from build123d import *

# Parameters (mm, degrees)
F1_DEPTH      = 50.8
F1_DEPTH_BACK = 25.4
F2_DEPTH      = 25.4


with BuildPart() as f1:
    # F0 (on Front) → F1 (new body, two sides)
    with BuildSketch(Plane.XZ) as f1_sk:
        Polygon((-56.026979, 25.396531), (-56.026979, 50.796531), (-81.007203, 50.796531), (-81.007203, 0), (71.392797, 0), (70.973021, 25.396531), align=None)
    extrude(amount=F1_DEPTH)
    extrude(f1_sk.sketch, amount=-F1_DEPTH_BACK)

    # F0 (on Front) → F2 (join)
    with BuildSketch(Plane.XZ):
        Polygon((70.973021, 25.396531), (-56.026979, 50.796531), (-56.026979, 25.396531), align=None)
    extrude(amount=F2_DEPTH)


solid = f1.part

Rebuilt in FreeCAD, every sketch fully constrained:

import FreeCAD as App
import Part
import Sketcher
Q = App.Units.Quantity

doc = App.newDocument("Part")
params = doc.addObject("Spreadsheet::Sheet", "Params")
for row, (alias, value) in enumerate([
    ("sketch1_width", "6 in"),
    ("sketch1_width2", "5 in"),
    ("sketch1_height", "1 in"),
    ("sketch1_length", "1 in"),
    ("pad1_length", "2 in"),
    ("pad1_length2", "1 in"),
    ("sketch2_width", "5 in"),
    ("sketch2_height", "1 in"),
    ("pad2_length", "1 in"),
], start=1):
    params.set(f"A{row}", alias)
    params.set(f"B{row}", "=" + value)
    params.setAlias(f"B{row}", alias)

body = doc.addObject("PartDesign::Body", "Body")

# Sketch on XZ plane
sketch1 = body.newObject("Sketcher::SketchObject", "Sketch")
sketch1.AttachmentSupport = (doc.getObject("XZ_Plane"), [""])
sketch1.MapMode = "FlatFace"
sketch1.addGeometry(Part.LineSegment(App.Vector(-56, 25, 0), App.Vector(-56, 51, 0)), False)
sketch1.addGeometry(Part.LineSegment(App.Vector(-56, 51, 0), App.Vector(-81, 51, 0)), False)
sketch1.addGeometry(Part.LineSegment(App.Vector(-81, 51, 0), App.Vector(-81, 0, 0)), False)
sketch1.addGeometry(Part.LineSegment(App.Vector(-81, 0, 0), App.Vector(71, 0, 0)), False)
sketch1.addGeometry(Part.LineSegment(App.Vector(71, 0, 0), App.Vector(71, 25, 0)), False)
sketch1.addGeometry(Part.LineSegment(App.Vector(71, 25, 0), App.Vector(-56, 25, 0)), False)
sketch1.addConstraint(Sketcher.Constraint("Coincident", 0, 2, 1, 1))
sketch1.addConstraint(Sketcher.Constraint("Coincident", 1, 2, 2, 1))
sketch1.addConstraint(Sketcher.Constraint("Coincident", 2, 2, 3, 1))
sketch1.addConstraint(Sketcher.Constraint("Coincident", 3, 2, 4, 1))
sketch1.addConstraint(Sketcher.Constraint("Coincident", 4, 2, 5, 1))
sketch1.addConstraint(Sketcher.Constraint("Coincident", 5, 2, 0, 1))
sketch1.addConstraint(Sketcher.Constraint("Vertical", 0))
sketch1.addConstraint(Sketcher.Constraint("Horizontal", 1))
sketch1.addConstraint(Sketcher.Constraint("Vertical", 2))
sketch1.addConstraint(Sketcher.Constraint("Horizontal", 3))
sketch1.addConstraint(Sketcher.Constraint("Horizontal", 5))
sketch1.addConstraint(Sketcher.Constraint("PointOnObject", 2, 2, -1))
sketch1.addConstraint(Sketcher.Constraint("DistanceX", 3, 1, 3, 2, Q("6 in")))
sketch1.addConstraint(Sketcher.Constraint("DistanceX", 5, 2, 5, 1, Q("5 in")))
sketch1.addConstraint(Sketcher.Constraint("DistanceY", 0, 1, 0, 2, Q("1 in")))
sketch1.addConstraint(Sketcher.Constraint("Distance", 4, Q("1 in")))
sketch1.addConstraint(Sketcher.Constraint("DistanceY", 2, 2, 2, 1, Q("50.796531 mm")))
sketch1.addConstraint(Sketcher.Constraint("DistanceX", 0, 2, -1, 1, Q("56.026979 mm")))
sketch1.setExpression("Constraints[12]", "Params.sketch1_width")
sketch1.setExpression("Constraints[13]", "Params.sketch1_width2")
sketch1.setExpression("Constraints[14]", "Params.sketch1_height")
sketch1.setExpression("Constraints[15]", "Params.sketch1_length")
pad1 = body.newObject("PartDesign::Pad", "Pad")
pad1.Profile = sketch1
pad1.Type = "TwoLengths"
pad1.setExpression("Length", "Params.pad1_length")
pad1.setExpression("Length2", "Params.pad1_length2")

# Sketch on XZ plane
sketch2 = body.newObject("Sketcher::SketchObject", "Sketch001")
sketch2.AttachmentSupport = (doc.getObject("XZ_Plane"), [""])
sketch2.MapMode = "FlatFace"
sketch2.addGeometry(Part.LineSegment(App.Vector(71, 25, 0), App.Vector(-56, 51, 0)), False)
sketch2.addGeometry(Part.LineSegment(App.Vector(-56, 51, 0), App.Vector(-56, 25, 0)), False)
sketch2.addGeometry(Part.LineSegment(App.Vector(-56, 25, 0), App.Vector(71, 25, 0)), False)
sketch2.addConstraint(Sketcher.Constraint("Coincident", 0, 2, 1, 1))
sketch2.addConstraint(Sketcher.Constraint("Coincident", 1, 2, 2, 1))
sketch2.addConstraint(Sketcher.Constraint("Coincident", 2, 2, 0, 1))
sketch2.addConstraint(Sketcher.Constraint("Vertical", 1))
sketch2.addConstraint(Sketcher.Constraint("Horizontal", 2))
sketch2.addConstraint(Sketcher.Constraint("DistanceX", 2, 1, 2, 2, Q("5 in")))
sketch2.addConstraint(Sketcher.Constraint("DistanceY", 1, 2, 1, 1, Q("1 in")))
sketch2.addConstraint(Sketcher.Constraint("DistanceX", 0, 2, -1, 1, Q("56.026979 mm")))
sketch2.addConstraint(Sketcher.Constraint("DistanceY", -1, 1, 0, 2, Q("50.796531 mm")))
sketch2.setExpression("Constraints[5]", "Params.sketch2_width")
sketch2.setExpression("Constraints[6]", "Params.sketch2_height")
pad2 = body.newObject("PartDesign::Pad", "Pad001")
pad2.Profile = sketch2
pad2.setExpression("Length", "Params.pad2_length")

doc.recompute()
